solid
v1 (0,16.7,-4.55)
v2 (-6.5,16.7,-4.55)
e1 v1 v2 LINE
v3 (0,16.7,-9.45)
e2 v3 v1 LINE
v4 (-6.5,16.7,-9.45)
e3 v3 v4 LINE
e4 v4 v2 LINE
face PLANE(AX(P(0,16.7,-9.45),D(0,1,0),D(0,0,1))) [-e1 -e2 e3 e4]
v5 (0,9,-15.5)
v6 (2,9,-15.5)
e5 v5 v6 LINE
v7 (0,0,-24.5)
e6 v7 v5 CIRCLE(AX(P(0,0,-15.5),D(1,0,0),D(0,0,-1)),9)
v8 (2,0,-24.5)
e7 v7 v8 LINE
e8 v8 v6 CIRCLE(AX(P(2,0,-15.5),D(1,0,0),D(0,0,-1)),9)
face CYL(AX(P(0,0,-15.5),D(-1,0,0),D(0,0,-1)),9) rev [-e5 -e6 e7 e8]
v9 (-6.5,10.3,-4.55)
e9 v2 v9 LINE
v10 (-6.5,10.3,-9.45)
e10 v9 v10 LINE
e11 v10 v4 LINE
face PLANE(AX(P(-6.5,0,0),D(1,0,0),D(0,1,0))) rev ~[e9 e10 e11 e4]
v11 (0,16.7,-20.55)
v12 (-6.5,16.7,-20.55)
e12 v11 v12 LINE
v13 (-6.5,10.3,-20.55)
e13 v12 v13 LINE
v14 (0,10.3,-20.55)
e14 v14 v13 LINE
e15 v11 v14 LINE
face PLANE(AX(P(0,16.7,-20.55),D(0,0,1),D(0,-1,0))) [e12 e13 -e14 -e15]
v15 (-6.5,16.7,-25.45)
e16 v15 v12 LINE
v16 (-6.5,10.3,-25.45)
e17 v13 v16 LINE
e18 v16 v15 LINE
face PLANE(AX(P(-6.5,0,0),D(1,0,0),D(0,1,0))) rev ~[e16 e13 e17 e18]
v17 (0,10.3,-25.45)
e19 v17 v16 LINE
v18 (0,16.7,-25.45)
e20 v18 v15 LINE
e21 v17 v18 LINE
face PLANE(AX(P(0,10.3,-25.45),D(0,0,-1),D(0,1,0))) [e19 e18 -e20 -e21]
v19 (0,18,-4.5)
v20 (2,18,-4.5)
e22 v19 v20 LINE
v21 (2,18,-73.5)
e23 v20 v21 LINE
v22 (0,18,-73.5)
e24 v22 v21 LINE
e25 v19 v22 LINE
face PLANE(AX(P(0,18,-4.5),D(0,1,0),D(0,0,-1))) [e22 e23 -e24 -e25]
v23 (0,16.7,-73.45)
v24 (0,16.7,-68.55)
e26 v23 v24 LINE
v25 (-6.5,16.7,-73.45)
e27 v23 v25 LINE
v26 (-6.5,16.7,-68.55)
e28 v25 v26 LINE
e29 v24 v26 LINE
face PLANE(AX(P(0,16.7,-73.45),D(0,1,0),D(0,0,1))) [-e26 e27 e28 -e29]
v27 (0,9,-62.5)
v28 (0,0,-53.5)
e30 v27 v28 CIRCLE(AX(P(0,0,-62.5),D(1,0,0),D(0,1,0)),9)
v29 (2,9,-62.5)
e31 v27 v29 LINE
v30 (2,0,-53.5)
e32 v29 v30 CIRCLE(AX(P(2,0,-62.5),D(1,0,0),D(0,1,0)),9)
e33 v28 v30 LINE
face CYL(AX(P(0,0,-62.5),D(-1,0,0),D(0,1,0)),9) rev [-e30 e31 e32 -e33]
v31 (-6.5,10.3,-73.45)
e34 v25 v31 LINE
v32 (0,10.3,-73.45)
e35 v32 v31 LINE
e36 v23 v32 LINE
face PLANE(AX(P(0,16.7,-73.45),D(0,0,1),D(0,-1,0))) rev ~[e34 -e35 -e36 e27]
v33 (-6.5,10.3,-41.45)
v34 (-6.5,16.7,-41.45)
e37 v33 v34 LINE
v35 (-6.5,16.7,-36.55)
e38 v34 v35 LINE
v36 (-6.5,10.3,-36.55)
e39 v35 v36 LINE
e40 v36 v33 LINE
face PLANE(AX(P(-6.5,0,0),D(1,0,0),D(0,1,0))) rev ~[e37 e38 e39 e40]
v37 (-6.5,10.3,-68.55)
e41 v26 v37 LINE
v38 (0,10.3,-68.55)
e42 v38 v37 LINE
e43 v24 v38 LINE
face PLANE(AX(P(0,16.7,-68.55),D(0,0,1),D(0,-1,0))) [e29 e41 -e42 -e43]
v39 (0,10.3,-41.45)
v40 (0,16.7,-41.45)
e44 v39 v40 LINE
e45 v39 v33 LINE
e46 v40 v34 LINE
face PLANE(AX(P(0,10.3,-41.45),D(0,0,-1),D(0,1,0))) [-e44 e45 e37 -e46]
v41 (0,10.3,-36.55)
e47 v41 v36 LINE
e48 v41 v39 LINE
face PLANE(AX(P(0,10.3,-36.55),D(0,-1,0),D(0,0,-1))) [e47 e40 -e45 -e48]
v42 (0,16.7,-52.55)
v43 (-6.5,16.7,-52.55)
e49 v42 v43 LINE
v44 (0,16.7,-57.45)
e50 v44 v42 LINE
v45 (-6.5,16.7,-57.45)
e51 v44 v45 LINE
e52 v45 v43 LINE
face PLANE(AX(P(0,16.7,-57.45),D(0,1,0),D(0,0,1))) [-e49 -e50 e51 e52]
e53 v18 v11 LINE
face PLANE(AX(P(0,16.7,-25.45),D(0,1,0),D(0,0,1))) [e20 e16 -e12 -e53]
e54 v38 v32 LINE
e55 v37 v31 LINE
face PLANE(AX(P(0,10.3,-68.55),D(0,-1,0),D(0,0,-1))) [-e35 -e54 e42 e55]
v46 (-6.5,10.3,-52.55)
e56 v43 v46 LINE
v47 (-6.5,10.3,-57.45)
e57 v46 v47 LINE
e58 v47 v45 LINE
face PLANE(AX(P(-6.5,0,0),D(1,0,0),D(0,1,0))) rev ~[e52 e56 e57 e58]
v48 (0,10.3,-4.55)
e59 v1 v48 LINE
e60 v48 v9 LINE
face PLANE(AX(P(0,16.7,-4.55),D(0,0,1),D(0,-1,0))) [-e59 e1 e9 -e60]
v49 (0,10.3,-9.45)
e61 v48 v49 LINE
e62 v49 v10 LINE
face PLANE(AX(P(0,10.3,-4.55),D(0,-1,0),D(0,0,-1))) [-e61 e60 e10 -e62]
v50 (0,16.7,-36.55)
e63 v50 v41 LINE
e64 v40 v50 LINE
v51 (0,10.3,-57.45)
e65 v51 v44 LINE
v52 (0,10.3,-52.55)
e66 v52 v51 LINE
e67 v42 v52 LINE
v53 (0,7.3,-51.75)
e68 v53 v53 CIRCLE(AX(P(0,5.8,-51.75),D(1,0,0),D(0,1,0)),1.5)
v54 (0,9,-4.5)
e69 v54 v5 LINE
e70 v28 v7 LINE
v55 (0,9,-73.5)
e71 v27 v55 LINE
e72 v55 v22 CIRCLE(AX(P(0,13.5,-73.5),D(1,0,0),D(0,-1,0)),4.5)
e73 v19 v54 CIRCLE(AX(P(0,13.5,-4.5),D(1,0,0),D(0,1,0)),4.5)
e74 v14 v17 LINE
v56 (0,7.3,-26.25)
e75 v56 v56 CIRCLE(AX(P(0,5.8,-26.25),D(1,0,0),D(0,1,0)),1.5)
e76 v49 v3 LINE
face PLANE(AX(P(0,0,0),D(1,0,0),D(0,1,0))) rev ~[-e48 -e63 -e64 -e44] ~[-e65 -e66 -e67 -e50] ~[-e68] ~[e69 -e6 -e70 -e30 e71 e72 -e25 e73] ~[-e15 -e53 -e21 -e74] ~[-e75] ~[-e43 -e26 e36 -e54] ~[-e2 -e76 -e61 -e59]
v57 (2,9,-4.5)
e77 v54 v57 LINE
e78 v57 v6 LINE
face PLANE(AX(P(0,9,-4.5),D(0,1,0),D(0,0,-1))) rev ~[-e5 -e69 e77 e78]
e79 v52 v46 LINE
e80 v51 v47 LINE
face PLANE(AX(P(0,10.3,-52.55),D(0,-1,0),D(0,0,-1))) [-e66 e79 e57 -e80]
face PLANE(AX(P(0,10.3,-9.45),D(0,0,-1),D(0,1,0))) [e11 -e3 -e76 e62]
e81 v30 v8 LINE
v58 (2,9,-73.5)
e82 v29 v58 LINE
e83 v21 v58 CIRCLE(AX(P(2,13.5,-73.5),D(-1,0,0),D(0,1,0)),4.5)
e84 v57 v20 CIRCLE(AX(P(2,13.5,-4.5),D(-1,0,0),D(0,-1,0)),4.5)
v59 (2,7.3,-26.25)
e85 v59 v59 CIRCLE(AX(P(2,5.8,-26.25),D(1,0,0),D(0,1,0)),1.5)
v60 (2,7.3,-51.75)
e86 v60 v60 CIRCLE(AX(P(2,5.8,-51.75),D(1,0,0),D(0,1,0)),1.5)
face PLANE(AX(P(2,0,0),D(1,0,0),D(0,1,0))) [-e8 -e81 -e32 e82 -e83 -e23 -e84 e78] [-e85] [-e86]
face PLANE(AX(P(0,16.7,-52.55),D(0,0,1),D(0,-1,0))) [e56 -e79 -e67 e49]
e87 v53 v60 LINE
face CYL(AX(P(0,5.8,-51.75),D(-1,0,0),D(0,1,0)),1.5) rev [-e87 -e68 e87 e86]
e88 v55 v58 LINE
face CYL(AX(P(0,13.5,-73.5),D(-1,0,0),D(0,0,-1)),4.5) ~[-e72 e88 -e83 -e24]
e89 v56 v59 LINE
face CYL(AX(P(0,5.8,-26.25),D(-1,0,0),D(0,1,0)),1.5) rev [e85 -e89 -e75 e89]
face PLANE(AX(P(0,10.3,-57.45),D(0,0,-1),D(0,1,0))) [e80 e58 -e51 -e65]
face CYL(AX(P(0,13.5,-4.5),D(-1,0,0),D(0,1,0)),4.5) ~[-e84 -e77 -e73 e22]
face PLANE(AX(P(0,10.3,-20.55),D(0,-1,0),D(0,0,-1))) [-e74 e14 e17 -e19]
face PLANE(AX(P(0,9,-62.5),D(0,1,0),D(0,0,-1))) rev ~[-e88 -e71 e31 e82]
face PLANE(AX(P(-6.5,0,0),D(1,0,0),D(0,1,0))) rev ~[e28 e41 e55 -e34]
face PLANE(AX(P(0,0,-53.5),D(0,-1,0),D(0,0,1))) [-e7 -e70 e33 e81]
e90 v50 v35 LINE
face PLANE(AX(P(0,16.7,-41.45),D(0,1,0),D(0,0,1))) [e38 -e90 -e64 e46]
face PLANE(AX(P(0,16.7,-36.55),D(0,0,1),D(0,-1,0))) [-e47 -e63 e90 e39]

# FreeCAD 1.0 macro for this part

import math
import FreeCAD as App
import Part
import Sketcher

V = App.Vector


def add_polygon(sketch, points):
    """Adds a closed chain of lines whose ends are joined by coincident constraints."""
    first, n = sketch.GeometryCount, len(points)
    for a, b in zip(points, points[1:] + points[:1]):
        sketch.addGeometry(Part.LineSegment(App.Vector(*a, 0), App.Vector(*b, 0)), False)
    for i in range(n):
        sketch.addConstraint(Sketcher.Constraint("Coincident", first + i, 2, first + (i + 1) % n, 1))

doc = App.newDocument("Part")
params = doc.addObject("Spreadsheet::Sheet", "Params")
for row, (alias, value) in enumerate([
    ("sketch1_diameter", "3 mm"),
    ("sketch1_radius", "9 mm"),
    ("sketch1_radius2", "4.5 mm"),
    ("pad1_length", "2 mm"),
    ("sketch2_width", "6.4 mm"),
    ("sketch2_height", "4.9 mm"),
    ("pad2_length", "6.5 mm"),
], start=1):
    params.set(f"A{row}", alias)
    params.set(f"B{row}", "=" + value)
    params.setAlias(f"B{row}", alias)

body = doc.addObject("PartDesign::Body", "Body")

# Sketch on YZ plane
sketch1 = body.newObject("Sketcher::SketchObject", "Sketch")
sketch1.AttachmentSupport = (doc.getObject("YZ_Plane"), [""])
sketch1.MapMode = "FlatFace"
sketch1.addGeometry([
    Part.LineSegment(V(18, -73.5, 0), V(18, -4.5, 0)),  # 0
    Part.ArcOfCircle(Part.Circle(V(13.5, -4.5, 0), V(0, 0, 1), 4.5), math.radians(0), math.radians(180)),  # 1
    Part.LineSegment(V(9, -4.5, 0), V(9, -15.5, 0)),  # 2
    Part.ArcOfCircle(Part.Circle(V(0, -15.5, 0), V(0, 0, 1), 9), math.radians(-90), math.radians(0)),  # 3
    Part.LineSegment(V(0, -24.5, 0), V(0, -53.5, 0)),  # 4
    Part.ArcOfCircle(Part.Circle(V(0, -62.5, 0), V(0, 0, 1), 9), math.radians(0), math.radians(90)),  # 5
    Part.LineSegment(V(9, -62.5, 0), V(9, -73.5, 0)),  # 6
    Part.ArcOfCircle(Part.Circle(V(13.5, -73.5, 0), V(0, 0, 1), 4.5), math.radians(180), math.radians(360)),  # 7
    Part.Circle(V(5.8, -51.8, 0), V(0, 0, 1), 1.5),  # 8
    Part.Circle(V(5.8, -26.2, 0), V(0, 0, 1), 1.5),  # 9
], False)
sketch1.addConstraint([
    Sketcher.Constraint("Tangent", 0, 2, 1, 1),
    Sketcher.Constraint("Tangent", 1, 2, 2, 1),
    Sketcher.Constraint("Tangent", 2, 2, 3, 2),
    Sketcher.Constraint("Coincident", 3, 1, 4, 1),
    Sketcher.Constraint("Coincident", 4, 2, 5, 2),
    Sketcher.Constraint("Tangent", 5, 1, 6, 1),
    Sketcher.Constraint("Tangent", 6, 2, 7, 1),
    Sketcher.Constraint("Tangent", 7, 2, 0, 1),
    Sketcher.Constraint("Vertical", 0),
    Sketcher.Constraint("Vertical", 2),
    Sketcher.Constraint("Vertical", 4),
    Sketcher.Constraint("Vertical", 6),
    Sketcher.Constraint("Equal", 3, 5),
    Sketcher.Constraint("Equal", 1, 7),
    Sketcher.Constraint("Equal", 8, 9),
    Sketcher.Constraint("PointOnObject", 3, 3, -2),
    Sketcher.Constraint("PointOnObject", 3, 1, -2),
    Sketcher.Constraint("Vertical", 8, 3, 9, 3),
    Sketcher.Constraint("Equal", 2, 6),
    Sketcher.Constraint("Diameter", 8, 3.0),
    Sketcher.Constraint("Radius", 3, 9.0),
    Sketcher.Constraint("Radius", 1, 4.5),
    Sketcher.Constraint("DistanceY", 5, 3, 3, 3, 47.0),
    Sketcher.Constraint("DistanceY", 1, 3, -1, 1, 4.5),
    Sketcher.Constraint("DistanceY", 3, 3, -1, 1, 15.5),
    Sketcher.Constraint("DistanceX", -1, 1, 8, 3, 5.8),
    Sketcher.Constraint("DistanceY", 9, 3, -1, 1, 26.25),
    Sketcher.Constraint("DistanceY", 8, 3, 9, 3, 25.5),
])
sketch1.setExpression("Constraints[19]", "Params.sketch1_diameter")
sketch1.setExpression("Constraints[20]", "Params.sketch1_radius")
sketch1.setExpression("Constraints[21]", "Params.sketch1_radius2")
pad1 = body.newObject("PartDesign::Pad", "Pad")
pad1.Profile = sketch1
pad1.setExpression("Length", "Params.pad1_length")

# Sketch on YZ plane
sketch2 = body.newObject("Sketcher::SketchObject", "Sketch001")
sketch2.AttachmentSupport = (doc.getObject("YZ_Plane"), [""])
sketch2.MapMode = "FlatFace"
add_polygon(sketch2, [(16.7, -25.4), (16.7, -20.6), (10.3, -20.6), (10.3, -25.4)])  # lines 0-3
add_polygon(sketch2, [(16.7, -41.5), (16.7, -36.5), (10.3, -36.5), (10.3, -41.5)])  # lines 4-7
add_polygon(sketch2, [(16.7, -57.5), (16.7, -52.5), (10.3, -52.5), (10.3, -57.5)])  # lines 8-11
add_polygon(sketch2, [(16.7, -9.4), (16.7, -4.5), (10.3, -4.5), (10.3, -9.4)])  # lines 12-15
add_polygon(sketch2, [(16.7, -73.5), (16.7, -68.5), (10.3, -68.5), (10.3, -73.5)])  # lines 16-19
sketch2.addConstraint([
    Sketcher.Constraint("Vertical", 0),
    Sketcher.Constraint("Horizontal", 1),
    Sketcher.Constraint("Vertical", 2),
    Sketcher.Constraint("Horizontal", 3),
    Sketcher.Constraint("Vertical", 4),
    Sketcher.Constraint("Horizontal", 5),
    Sketcher.Constraint("Vertical", 6),
    Sketcher.Constraint("Horizontal", 7),
    Sketcher.Constraint("Vertical", 8),
    Sketcher.Constraint("Horizontal", 9),
    Sketcher.Constraint("Vertical", 10),
    Sketcher.Constraint("Horizontal", 11),
    Sketcher.Constraint("Vertical", 12),
    Sketcher.Constraint("Horizontal", 13),
    Sketcher.Constraint("Vertical", 14),
    Sketcher.Constraint("Horizontal", 15),
    Sketcher.Constraint("Vertical", 16),
    Sketcher.Constraint("Horizontal", 17),
    Sketcher.Constraint("Vertical", 18),
    Sketcher.Constraint("Horizontal", 19),
    Sketcher.Constraint("Vertical", 3, 2, 4, 2),
    Sketcher.Constraint("Vertical", 2, 2, 5, 2),
    Sketcher.Constraint("Vertical", 7, 2, 8, 2),
    Sketcher.Constraint("Vertical", 6, 2, 9, 2),
    Sketcher.Constraint("Vertical", 11, 2, 12, 2),
    Sketcher.Constraint("Vertical", 10, 2, 13, 2),
    Sketcher.Constraint("Vertical", 15, 2, 16, 2),
    Sketcher.Constraint("Vertical", 14, 2, 17, 2),
    Sketcher.Constraint("Equal", 2, 4),
    Sketcher.Constraint("Equal", 6, 8),
    Sketcher.Constraint("Equal", 10, 12),
    Sketcher.Constraint("Equal", 14, 16),
    Sketcher.Constraint("DistanceX", 1, 2, 1, 1, 6.4),
    Sketcher.Constraint("DistanceY", 0, 1, 0, 2, 4.9),
    Sketcher.Constraint("DistanceY", 4, 2, 0, 2, 16.0),
    Sketcher.Constraint("DistanceY", 8, 2, 4, 2, 16.0),
    Sketcher.Constraint("DistanceY", 0, 2, 12, 2, 16.0),
    Sketcher.Constraint("DistanceY", 16, 2, 8, 2, 16.0),
    Sketcher.Constraint("DistanceY", 12, 2, -1, 1, 4.55),
    Sketcher.Constraint("DistanceX", -1, 1, 0, 2, 16.7),
])
sketch2.setExpression("Constraints[52]", "Params.sketch2_width")
sketch2.setExpression("Constraints[53]", "Params.sketch2_height")
pad2 = body.newObject("PartDesign::Pad", "Pad001")
pad2.Profile = sketch2
pad2.setExpression("Length", "Params.pad2_length")
pad2.Reversed = True

doc.recompute()
